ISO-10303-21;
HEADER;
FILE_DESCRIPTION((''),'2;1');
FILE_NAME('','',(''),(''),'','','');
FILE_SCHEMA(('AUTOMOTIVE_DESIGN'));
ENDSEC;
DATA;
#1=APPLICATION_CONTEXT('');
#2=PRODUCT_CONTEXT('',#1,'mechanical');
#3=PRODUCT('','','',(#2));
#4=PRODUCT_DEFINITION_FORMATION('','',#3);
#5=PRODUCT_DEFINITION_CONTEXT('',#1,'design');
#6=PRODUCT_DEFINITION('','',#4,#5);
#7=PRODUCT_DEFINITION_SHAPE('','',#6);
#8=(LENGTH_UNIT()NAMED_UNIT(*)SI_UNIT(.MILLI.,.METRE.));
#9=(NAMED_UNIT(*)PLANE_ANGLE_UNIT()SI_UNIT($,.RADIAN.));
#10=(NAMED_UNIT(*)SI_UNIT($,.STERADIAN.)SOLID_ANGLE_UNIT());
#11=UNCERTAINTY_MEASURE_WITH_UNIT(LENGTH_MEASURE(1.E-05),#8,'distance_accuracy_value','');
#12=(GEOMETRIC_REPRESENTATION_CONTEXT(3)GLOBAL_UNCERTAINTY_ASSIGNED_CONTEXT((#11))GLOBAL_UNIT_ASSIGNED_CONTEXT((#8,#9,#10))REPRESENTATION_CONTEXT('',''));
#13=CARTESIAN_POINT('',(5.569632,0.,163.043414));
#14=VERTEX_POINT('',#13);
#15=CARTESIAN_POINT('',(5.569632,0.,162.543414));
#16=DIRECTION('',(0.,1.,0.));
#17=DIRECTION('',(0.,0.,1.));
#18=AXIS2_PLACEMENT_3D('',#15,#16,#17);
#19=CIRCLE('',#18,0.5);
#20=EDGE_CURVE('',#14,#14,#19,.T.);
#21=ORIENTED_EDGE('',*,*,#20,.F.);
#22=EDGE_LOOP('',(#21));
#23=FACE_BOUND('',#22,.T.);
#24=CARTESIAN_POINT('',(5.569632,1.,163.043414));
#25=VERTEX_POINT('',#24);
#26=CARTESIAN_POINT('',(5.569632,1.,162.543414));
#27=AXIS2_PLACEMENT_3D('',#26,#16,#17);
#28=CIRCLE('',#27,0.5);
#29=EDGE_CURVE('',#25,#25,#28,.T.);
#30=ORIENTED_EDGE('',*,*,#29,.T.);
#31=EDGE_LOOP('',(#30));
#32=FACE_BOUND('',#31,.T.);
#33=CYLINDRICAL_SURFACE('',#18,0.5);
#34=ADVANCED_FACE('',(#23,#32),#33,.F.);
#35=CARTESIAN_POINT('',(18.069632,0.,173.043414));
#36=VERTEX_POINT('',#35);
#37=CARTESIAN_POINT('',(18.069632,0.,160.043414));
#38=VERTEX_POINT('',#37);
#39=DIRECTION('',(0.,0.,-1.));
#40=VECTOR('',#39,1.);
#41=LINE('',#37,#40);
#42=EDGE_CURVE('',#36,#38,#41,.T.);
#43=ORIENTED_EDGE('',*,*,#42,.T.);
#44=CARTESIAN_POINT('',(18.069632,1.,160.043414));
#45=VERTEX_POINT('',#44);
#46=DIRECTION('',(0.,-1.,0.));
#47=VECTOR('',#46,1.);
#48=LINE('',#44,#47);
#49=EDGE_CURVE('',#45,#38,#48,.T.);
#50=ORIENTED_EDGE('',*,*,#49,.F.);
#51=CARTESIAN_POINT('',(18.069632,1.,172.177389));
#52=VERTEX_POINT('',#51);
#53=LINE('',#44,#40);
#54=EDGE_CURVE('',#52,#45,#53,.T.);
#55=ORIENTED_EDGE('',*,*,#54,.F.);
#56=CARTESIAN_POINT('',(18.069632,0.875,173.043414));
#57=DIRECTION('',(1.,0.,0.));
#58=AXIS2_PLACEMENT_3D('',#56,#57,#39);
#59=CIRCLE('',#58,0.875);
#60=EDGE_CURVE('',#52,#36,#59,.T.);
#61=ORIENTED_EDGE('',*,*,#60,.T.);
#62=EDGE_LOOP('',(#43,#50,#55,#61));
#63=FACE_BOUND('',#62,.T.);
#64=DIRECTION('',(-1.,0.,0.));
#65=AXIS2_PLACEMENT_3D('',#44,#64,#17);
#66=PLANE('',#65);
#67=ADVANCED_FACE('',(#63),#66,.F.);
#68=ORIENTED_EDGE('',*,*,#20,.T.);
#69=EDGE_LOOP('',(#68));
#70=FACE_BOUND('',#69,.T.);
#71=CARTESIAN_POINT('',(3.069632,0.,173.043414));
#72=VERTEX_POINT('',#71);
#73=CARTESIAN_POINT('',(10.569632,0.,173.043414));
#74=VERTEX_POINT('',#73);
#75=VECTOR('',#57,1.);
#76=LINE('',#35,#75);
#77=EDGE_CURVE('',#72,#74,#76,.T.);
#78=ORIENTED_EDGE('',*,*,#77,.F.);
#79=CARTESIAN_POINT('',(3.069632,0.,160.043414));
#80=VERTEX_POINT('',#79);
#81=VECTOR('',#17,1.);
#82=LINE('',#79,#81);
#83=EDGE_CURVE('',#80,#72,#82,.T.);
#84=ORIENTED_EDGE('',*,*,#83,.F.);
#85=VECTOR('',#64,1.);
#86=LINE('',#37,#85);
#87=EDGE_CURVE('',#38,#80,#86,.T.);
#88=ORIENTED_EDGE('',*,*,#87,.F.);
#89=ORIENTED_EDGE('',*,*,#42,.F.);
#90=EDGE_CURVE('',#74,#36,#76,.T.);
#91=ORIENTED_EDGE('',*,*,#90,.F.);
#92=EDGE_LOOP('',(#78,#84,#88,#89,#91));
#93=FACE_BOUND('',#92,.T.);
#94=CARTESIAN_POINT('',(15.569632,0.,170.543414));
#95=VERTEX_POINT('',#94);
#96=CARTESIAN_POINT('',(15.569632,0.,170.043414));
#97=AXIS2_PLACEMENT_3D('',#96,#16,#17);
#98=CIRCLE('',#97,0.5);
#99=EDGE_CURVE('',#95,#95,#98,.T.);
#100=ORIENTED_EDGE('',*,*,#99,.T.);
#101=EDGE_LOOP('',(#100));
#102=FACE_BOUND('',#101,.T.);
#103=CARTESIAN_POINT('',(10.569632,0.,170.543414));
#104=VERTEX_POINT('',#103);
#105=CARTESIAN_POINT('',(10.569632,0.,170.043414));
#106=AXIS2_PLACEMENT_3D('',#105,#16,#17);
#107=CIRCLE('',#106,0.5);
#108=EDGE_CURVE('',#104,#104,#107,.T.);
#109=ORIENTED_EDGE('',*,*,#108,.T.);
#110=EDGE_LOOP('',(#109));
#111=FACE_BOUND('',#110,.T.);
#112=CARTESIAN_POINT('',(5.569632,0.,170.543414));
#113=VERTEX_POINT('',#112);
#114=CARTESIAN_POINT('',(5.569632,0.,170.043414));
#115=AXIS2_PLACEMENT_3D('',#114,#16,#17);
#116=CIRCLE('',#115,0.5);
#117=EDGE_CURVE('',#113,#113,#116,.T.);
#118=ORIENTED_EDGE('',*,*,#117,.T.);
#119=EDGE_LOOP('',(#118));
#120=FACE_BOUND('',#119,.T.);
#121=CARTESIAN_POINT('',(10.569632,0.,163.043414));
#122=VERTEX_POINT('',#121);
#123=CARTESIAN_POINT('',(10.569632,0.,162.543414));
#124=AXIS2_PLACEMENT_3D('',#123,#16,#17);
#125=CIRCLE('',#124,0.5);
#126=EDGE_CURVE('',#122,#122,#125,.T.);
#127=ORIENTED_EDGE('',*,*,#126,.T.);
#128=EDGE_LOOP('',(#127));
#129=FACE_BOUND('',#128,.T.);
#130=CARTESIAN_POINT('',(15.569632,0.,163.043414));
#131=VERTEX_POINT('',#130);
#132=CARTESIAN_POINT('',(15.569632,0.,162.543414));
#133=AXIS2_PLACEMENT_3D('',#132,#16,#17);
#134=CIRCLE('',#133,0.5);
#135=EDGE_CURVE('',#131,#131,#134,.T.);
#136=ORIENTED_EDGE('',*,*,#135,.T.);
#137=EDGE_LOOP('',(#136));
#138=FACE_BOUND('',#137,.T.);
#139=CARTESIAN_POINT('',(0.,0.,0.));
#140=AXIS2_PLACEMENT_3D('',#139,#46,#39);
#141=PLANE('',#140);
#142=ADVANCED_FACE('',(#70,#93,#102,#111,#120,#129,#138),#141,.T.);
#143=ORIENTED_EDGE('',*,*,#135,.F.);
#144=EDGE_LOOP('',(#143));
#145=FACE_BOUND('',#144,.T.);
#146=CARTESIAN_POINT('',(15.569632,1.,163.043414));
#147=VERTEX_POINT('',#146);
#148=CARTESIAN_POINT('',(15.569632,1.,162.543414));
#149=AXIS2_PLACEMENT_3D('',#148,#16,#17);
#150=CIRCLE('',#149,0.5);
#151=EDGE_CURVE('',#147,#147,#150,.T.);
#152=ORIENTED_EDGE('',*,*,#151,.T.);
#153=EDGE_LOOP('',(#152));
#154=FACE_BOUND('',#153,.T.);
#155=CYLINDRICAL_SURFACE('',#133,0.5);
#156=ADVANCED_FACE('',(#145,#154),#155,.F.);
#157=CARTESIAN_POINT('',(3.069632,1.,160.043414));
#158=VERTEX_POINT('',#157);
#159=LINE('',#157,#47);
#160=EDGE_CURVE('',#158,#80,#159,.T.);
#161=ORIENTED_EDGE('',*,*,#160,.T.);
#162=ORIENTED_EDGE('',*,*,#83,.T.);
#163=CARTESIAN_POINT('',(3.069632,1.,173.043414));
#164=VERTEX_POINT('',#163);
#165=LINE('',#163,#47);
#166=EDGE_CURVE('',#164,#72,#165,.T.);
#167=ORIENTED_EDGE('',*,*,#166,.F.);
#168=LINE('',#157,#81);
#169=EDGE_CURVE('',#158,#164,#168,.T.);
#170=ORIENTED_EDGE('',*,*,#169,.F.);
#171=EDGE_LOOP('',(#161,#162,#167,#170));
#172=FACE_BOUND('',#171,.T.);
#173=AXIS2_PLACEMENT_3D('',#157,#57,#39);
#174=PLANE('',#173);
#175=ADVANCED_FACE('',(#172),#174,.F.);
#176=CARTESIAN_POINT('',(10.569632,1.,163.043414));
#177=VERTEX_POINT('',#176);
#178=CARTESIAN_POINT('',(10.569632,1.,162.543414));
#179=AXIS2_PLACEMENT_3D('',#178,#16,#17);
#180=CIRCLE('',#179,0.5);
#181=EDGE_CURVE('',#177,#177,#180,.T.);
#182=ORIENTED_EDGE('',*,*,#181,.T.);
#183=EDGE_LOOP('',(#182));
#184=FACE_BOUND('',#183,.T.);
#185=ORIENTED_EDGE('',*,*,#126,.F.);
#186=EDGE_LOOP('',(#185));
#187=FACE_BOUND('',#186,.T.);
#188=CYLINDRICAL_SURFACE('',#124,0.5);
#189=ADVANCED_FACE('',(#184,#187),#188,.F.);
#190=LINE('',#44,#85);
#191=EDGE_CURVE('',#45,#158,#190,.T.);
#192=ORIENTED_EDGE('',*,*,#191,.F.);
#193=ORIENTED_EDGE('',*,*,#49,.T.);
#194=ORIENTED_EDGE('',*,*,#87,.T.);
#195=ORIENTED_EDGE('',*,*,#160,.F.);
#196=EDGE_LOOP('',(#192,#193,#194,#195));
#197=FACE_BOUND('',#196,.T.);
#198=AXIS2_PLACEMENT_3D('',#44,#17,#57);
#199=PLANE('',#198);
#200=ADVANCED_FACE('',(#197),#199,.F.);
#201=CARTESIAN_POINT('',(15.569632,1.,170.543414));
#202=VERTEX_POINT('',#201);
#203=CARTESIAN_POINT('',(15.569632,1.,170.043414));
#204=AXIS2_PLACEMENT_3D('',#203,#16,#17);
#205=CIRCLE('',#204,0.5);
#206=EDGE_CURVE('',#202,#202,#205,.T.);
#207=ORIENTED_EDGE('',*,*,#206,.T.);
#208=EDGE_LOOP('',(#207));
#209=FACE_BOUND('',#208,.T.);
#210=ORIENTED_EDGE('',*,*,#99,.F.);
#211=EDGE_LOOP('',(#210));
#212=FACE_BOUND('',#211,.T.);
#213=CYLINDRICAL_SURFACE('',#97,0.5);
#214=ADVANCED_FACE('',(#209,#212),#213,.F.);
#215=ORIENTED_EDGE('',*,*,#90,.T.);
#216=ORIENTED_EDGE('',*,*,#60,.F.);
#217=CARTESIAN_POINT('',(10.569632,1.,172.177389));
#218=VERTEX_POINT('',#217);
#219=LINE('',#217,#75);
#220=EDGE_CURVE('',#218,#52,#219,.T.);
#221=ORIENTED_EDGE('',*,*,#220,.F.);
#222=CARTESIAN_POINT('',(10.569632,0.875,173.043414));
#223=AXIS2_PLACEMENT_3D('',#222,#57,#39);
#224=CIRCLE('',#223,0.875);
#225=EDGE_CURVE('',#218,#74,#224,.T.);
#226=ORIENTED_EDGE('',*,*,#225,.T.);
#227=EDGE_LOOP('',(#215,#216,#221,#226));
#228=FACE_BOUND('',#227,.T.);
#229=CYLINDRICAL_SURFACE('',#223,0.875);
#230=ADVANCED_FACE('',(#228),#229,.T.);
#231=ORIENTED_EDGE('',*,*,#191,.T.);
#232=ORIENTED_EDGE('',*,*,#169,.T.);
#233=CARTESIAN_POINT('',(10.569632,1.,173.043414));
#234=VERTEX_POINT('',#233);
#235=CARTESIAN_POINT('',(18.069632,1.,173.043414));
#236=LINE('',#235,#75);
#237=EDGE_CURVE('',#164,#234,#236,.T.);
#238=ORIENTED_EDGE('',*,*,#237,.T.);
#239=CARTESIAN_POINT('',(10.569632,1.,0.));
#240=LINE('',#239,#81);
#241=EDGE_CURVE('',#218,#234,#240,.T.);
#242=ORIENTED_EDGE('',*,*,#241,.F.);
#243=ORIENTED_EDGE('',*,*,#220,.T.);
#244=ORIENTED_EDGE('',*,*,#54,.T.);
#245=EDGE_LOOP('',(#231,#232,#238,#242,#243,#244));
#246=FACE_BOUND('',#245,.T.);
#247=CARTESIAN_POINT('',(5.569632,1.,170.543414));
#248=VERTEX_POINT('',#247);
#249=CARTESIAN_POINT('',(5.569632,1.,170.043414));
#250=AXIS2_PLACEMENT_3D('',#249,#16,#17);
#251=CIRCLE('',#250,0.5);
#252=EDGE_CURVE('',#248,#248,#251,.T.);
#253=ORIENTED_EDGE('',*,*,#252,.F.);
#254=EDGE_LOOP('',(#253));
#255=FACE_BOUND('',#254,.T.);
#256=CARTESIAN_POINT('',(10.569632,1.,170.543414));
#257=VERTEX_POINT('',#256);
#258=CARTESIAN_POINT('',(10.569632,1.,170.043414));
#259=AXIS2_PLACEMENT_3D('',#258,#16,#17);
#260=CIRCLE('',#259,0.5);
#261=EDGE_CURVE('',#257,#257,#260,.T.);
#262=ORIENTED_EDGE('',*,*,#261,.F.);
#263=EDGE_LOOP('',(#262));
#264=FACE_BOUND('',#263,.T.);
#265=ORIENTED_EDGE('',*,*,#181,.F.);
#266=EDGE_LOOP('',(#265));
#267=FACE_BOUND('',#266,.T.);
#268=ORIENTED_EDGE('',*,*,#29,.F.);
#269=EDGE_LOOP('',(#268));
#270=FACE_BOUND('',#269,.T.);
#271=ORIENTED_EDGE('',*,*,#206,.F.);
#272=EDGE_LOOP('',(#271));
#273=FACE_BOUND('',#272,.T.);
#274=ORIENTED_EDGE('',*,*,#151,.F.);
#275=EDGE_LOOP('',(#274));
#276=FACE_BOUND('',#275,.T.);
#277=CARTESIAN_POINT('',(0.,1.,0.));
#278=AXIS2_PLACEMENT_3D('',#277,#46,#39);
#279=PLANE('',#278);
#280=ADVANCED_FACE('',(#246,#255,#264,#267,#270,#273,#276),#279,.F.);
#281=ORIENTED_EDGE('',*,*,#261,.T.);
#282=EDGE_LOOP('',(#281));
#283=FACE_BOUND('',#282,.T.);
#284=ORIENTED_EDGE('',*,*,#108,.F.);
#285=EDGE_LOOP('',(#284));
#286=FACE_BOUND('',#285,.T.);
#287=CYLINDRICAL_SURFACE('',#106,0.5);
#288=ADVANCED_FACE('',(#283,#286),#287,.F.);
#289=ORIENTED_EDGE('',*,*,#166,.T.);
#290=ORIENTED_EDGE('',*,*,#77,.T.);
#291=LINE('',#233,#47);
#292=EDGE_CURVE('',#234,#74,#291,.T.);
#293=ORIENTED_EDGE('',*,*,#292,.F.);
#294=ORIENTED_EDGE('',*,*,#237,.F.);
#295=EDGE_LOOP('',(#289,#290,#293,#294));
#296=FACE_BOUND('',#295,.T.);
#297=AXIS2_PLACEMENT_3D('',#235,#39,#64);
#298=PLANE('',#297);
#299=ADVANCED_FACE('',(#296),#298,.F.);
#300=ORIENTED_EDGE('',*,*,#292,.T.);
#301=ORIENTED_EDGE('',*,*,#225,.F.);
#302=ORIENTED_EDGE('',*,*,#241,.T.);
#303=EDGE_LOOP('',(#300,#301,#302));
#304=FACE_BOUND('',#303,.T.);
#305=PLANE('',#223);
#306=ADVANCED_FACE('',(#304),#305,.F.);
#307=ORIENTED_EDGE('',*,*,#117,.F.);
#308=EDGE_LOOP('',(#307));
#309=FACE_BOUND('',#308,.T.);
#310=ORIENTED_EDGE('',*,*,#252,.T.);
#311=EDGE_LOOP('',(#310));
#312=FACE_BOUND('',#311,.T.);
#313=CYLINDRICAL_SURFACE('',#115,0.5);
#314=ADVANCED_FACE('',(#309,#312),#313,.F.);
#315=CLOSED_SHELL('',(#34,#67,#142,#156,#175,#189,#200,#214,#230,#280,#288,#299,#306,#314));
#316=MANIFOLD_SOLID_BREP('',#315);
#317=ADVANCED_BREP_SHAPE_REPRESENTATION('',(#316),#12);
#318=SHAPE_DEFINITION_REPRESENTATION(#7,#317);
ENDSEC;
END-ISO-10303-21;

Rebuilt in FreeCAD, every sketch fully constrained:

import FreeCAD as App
import Part
import Sketcher

doc = App.newDocument("Part")
body = doc.addObject("PartDesign::Body", "Body")

# Sketch on XZ plane
sketch1 = doc.addObject("Sketcher::SketchObject", "Sketch")
body.addObject(sketch1)
sketch1.AttachmentSupport = (doc.XZ_Plane, [""])
sketch1.MapMode = "FlatFace"
sketch1.addGeometry([
    Part.LineSegment(App.Vector(3.069632, 160.043414, 0), App.Vector(3.069632, 173.043414, 0)),
    Part.LineSegment(App.Vector(3.069632, 173.043414, 0), App.Vector(18.069632, 173.043414, 0)),
    Part.LineSegment(App.Vector(18.069632, 173.043414, 0), App.Vector(18.069632, 160.043414, 0)),
    Part.LineSegment(App.Vector(18.069632, 160.043414, 0), App.Vector(3.069632, 160.043414, 0)),
], False)
sketch1.addConstraint([
    Sketcher.Constraint("Coincident", 0, 2, 1, 1),
    Sketcher.Constraint("Coincident", 1, 2, 2, 1),
    Sketcher.Constraint("Coincident", 2, 2, 3, 1),
    Sketcher.Constraint("Coincident", 3, 2, 0, 1),
    Sketcher.Constraint("Vertical", 0),
    Sketcher.Constraint("Horizontal", 1),
    Sketcher.Constraint("Vertical", 2),
    Sketcher.Constraint("Horizontal", 3),
    Sketcher.Constraint("DistanceX", 1, 1, 1, 2, 15.0),
    Sketcher.Constraint("DistanceY", 0, 1, 0, 2, 13.0),
    Sketcher.Constraint("DistanceX", -1, 1, 0, 2, 3.069632),
    Sketcher.Constraint("DistanceY", -1, 1, 0, 2, 173.043414),
])
pad1 = doc.addObject("PartDesign::Pad", "Pad")
body.addObject(pad1)
pad1.Profile = sketch1
pad1.Length = 1
pad1.Reversed = True

# Sketch on YZ plane
sketch2 = doc.addObject("Sketcher::SketchObject", "Sketch001")
body.addObject(sketch2)
sketch2.AttachmentSupport = (doc.YZ_Plane, [""])
sketch2.MapMode = "FlatFace"
sketch2.AttachmentOffset = App.Placement(App.Vector(0, 0, 18.069632), App.Rotation())
sketch2.addGeometry(Part.Circle(App.Vector(0.875, 173.043414, 0), App.Vector(0, 0, 1), 0.875), False)
sketch2.addConstraint([
    Sketcher.Constraint("Diameter", 0, 1.75),
    Sketcher.Constraint("DistanceX", -1, 1, 0, 3, 0.875),
    Sketcher.Constraint("DistanceY", -1, 1, 0, 3, 173.043414),
])
pad2 = doc.addObject("PartDesign::Pad", "Pad001")
body.addObject(pad2)
pad2.Profile = sketch2
pad2.Length = 7.5
pad2.Reversed = True

# Sketch on XZ plane
sketch3 = doc.addObject("Sketcher::SketchObject", "Sketch002")
body.addObject(sketch3)
sketch3.AttachmentSupport = (doc.XZ_Plane, [""])
sketch3.MapMode = "FlatFace"
sketch3.AttachmentOffset = App.Placement(App.Vector(0, 0, -1), App.Rotation())
sketch3.addGeometry([
    Part.Circle(App.Vector(15.569632, 162.543414, 0), App.Vector(0, 0, 1), 0.5),  # 0
    Part.Circle(App.Vector(15.569632, 170.043414, 0), App.Vector(0, 0, 1), 0.5),  # 1
    Part.Circle(App.Vector(10.569632, 162.543414, 0), App.Vector(0, 0, 1), 0.5),  # 2
    Part.Circle(App.Vector(10.569632, 170.043414, 0), App.Vector(0, 0, 1), 0.5),  # 3
    Part.Circle(App.Vector(5.569632, 162.543414, 0), App.Vector(0, 0, 1), 0.5),  # 4
    Part.Circle(App.Vector(5.569632, 170.043414, 0), App.Vector(0, 0, 1), 0.5),  # 5
], False)
sketch3.addConstraint([
    Sketcher.Constraint("Equal", 0, 1),
    Sketcher.Constraint("Equal", 1, 2),
    Sketcher.Constraint("Equal", 2, 3),
    Sketcher.Constraint("Equal", 3, 4),
    Sketcher.Constraint("Equal", 4, 5),
    Sketcher.Constraint("Horizontal", 0, 3, 2, 3),
    Sketcher.Constraint("Horizontal", 1, 3, 3, 3),
    Sketcher.Constraint("Horizontal", 2, 3, 4, 3),
    Sketcher.Constraint("Horizontal", 3, 3, 5, 3),
    Sketcher.Constraint("Vertical", 0, 3, 1, 3),
    Sketcher.Constraint("Vertical", 2, 3, 3, 3),
    Sketcher.Constraint("Vertical", 4, 3, 5, 3),
    Sketcher.Constraint("Diameter", 0, 1.0),
    Sketcher.Constraint("DistanceX", 2, 3, 0, 3, 5.0),
    Sketcher.Constraint("DistanceX", 4, 3, 2, 3, 5.0),
    Sketcher.Constraint("DistanceY", 0, 3, 1, 3, 7.5),
    Sketcher.Constraint("DistanceX", -1, 1, 0, 3, 15.569632),
    Sketcher.Constraint("DistanceY", -1, 1, 0, 3, 162.543414),
])
pocket1 = doc.addObject("PartDesign::Pocket", "Pocket")
body.addObject(pocket1)
pocket1.Profile = sketch3
pocket1.Type = "ThroughAll"
pocket1.Reversed = True

doc.recompute()
